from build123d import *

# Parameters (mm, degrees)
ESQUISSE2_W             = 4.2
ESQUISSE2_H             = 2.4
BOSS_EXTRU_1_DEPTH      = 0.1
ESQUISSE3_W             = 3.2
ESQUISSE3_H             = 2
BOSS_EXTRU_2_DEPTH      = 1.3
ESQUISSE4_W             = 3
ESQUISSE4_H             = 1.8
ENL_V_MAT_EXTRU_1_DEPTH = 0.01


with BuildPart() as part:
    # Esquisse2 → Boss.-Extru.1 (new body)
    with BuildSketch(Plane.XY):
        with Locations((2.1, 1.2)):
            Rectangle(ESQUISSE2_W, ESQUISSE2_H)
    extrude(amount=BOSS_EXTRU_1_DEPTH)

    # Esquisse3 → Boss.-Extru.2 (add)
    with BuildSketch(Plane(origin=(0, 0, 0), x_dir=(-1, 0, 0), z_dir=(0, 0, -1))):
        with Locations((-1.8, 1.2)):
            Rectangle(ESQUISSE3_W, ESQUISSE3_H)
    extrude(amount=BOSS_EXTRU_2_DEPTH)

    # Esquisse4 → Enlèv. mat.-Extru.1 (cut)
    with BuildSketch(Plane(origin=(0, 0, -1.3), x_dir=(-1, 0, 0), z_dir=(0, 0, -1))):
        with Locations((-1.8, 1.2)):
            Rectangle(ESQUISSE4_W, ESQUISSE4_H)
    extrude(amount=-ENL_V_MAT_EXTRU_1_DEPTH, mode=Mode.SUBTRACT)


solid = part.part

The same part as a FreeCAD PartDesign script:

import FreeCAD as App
import Part
import Sketcher

V = App.Vector

doc = App.newDocument("Part")
body = doc.addObject("PartDesign::Body", "Body")

# Sketch on XY plane
sketch1 = doc.addObject("Sketcher::SketchObject", "Sketch")
body.addObject(sketch1)
sketch1.AttachmentSupport = (doc.XY_Plane, [""])
sketch1.MapMode = "FlatFace"
sketch1.addGeometry([
    Part.LineSegment(V(0, 2.4, 0), V(0, 0, 0)),
    Part.LineSegment(V(0, 0, 0), V(4.2, 0, 0)),
    Part.LineSegment(V(4.2, 0, 0), V(4.2, 2.4, 0)),
    Part.LineSegment(V(4.2, 2.4, 0), V(0, 2.4, 0)),
], False)
sketch1.addConstraint([
    Sketcher.Constraint("Coincident", 0, 2, 1, 1),
    Sketcher.Constraint("Coincident", 1, 2, 2, 1),
    Sketcher.Constraint("Coincident", 2, 2, 3, 1),
    Sketcher.Constraint("Coincident", 3, 2, 0, 1),
    Sketcher.Constraint("Vertical", 0),
    Sketcher.Constraint("Horizontal", 1),
    Sketcher.Constraint("Vertical", 2),
    Sketcher.Constraint("Horizontal", 3),
    Sketcher.Constraint("Coincident", 0, 2, -1, 1),
    Sketcher.Constraint("DistanceX", 1, 1, 1, 2, 4.2),
    Sketcher.Constraint("DistanceY", 0, 2, 0, 1, 2.4),
])
pad1 = doc.addObject("PartDesign::Pad", "Pad")
body.addObject(pad1)
pad1.Profile = sketch1
pad1.Length = 0.1

# Sketch on XY plane
sketch2 = doc.addObject("Sketcher::SketchObject", "Sketch001")
body.addObject(sketch2)
sketch2.AttachmentSupport = (doc.XY_Plane, [""])
sketch2.MapMode = "FlatFace"
sketch2.addGeometry([
    Part.LineSegment(V(3.4, 2.2, 0), V(3.4, 0.2, 0)),
    Part.LineSegment(V(3.4, 0.2, 0), V(0.2, 0.2, 0)),
    Part.LineSegment(V(0.2, 0.2, 0), V(0.2, 2.2, 0)),
    Part.LineSegment(V(0.2, 2.2, 0), V(3.4, 2.2, 0)),
], False)
sketch2.addConstraint([
    Sketcher.Constraint("Coincident", 0, 2, 1, 1),
    Sketcher.Constraint("Coincident", 1, 2, 2, 1),
    Sketcher.Constraint("Coincident", 2, 2, 3, 1),
    Sketcher.Constraint("Coincident", 3, 2, 0, 1),
    Sketcher.Constraint("Vertical", 0),
    Sketcher.Constraint("Horizontal", 1),
    Sketcher.Constraint("Vertical", 2),
    Sketcher.Constraint("Horizontal", 3),
    Sketcher.Constraint("DistanceY", 0, 2, 0, 1, 2.0),
    Sketcher.Constraint("DistanceX", 1, 2, 1, 1, 3.2),
    Sketcher.Constraint("DistanceX", -1, 1, 0, 2, 3.4),
    Sketcher.Constraint("DistanceY", -1, 1, 0, 2, 0.2),
])
pad2 = doc.addObject("PartDesign::Pad", "Pad001")
body.addObject(pad2)
pad2.Profile = sketch2
pad2.Length = 1.3
pad2.Reversed = True

# Sketch on XY plane
sketch3 = doc.addObject("Sketcher::SketchObject", "Sketch002")
body.addObject(sketch3)
sketch3.AttachmentSupport = (doc.XY_Plane, [""])
sketch3.MapMode = "FlatFace"
sketch3.AttachmentOffset = App.Placement(V(0, 0, -1.3), App.Rotation())
sketch3.addGeometry([
    Part.LineSegment(V(3.3, 2.1, 0), V(3.3, 0.3, 0)),
    Part.LineSegment(V(3.3, 0.3, 0), V(0.3, 0.3, 0)),
    Part.LineSegment(V(0.3, 0.3, 0), V(0.3, 2.1, 0)),
    Part.LineSegment(V(0.3, 2.1, 0), V(3.3, 2.1, 0)),
], False)
sketch3.addConstraint([
    Sketcher.Constraint("Coincident", 0, 2, 1, 1),
    Sketcher.Constraint("Coincident", 1, 2, 2, 1),
    Sketcher.Constraint("Coincident", 2, 2, 3, 1),
    Sketcher.Constraint("Coincident", 3, 2, 0, 1),
    Sketcher.Constraint("Vertical", 0),
    Sketcher.Constraint("Horizontal", 1),
    Sketcher.Constraint("Vertical", 2),
    Sketcher.Constraint("Horizontal", 3),
    Sketcher.Constraint("DistanceX", 1, 2, 1, 1, 3.0),
    Sketcher.Constraint("DistanceY", 0, 2, 0, 1, 1.8),
    Sketcher.Constraint("DistanceX", -1, 1, 0, 2, 3.3),
    Sketcher.Constraint("DistanceY", -1, 1, 0, 2, 0.3),
])
pocket1 = doc.addObject("PartDesign::Pocket", "Pocket")
body.addObject(pocket1)
pocket1.Profile = sketch3
pocket1.Length = 0.01
pocket1.Reversed = True

doc.recompute()
